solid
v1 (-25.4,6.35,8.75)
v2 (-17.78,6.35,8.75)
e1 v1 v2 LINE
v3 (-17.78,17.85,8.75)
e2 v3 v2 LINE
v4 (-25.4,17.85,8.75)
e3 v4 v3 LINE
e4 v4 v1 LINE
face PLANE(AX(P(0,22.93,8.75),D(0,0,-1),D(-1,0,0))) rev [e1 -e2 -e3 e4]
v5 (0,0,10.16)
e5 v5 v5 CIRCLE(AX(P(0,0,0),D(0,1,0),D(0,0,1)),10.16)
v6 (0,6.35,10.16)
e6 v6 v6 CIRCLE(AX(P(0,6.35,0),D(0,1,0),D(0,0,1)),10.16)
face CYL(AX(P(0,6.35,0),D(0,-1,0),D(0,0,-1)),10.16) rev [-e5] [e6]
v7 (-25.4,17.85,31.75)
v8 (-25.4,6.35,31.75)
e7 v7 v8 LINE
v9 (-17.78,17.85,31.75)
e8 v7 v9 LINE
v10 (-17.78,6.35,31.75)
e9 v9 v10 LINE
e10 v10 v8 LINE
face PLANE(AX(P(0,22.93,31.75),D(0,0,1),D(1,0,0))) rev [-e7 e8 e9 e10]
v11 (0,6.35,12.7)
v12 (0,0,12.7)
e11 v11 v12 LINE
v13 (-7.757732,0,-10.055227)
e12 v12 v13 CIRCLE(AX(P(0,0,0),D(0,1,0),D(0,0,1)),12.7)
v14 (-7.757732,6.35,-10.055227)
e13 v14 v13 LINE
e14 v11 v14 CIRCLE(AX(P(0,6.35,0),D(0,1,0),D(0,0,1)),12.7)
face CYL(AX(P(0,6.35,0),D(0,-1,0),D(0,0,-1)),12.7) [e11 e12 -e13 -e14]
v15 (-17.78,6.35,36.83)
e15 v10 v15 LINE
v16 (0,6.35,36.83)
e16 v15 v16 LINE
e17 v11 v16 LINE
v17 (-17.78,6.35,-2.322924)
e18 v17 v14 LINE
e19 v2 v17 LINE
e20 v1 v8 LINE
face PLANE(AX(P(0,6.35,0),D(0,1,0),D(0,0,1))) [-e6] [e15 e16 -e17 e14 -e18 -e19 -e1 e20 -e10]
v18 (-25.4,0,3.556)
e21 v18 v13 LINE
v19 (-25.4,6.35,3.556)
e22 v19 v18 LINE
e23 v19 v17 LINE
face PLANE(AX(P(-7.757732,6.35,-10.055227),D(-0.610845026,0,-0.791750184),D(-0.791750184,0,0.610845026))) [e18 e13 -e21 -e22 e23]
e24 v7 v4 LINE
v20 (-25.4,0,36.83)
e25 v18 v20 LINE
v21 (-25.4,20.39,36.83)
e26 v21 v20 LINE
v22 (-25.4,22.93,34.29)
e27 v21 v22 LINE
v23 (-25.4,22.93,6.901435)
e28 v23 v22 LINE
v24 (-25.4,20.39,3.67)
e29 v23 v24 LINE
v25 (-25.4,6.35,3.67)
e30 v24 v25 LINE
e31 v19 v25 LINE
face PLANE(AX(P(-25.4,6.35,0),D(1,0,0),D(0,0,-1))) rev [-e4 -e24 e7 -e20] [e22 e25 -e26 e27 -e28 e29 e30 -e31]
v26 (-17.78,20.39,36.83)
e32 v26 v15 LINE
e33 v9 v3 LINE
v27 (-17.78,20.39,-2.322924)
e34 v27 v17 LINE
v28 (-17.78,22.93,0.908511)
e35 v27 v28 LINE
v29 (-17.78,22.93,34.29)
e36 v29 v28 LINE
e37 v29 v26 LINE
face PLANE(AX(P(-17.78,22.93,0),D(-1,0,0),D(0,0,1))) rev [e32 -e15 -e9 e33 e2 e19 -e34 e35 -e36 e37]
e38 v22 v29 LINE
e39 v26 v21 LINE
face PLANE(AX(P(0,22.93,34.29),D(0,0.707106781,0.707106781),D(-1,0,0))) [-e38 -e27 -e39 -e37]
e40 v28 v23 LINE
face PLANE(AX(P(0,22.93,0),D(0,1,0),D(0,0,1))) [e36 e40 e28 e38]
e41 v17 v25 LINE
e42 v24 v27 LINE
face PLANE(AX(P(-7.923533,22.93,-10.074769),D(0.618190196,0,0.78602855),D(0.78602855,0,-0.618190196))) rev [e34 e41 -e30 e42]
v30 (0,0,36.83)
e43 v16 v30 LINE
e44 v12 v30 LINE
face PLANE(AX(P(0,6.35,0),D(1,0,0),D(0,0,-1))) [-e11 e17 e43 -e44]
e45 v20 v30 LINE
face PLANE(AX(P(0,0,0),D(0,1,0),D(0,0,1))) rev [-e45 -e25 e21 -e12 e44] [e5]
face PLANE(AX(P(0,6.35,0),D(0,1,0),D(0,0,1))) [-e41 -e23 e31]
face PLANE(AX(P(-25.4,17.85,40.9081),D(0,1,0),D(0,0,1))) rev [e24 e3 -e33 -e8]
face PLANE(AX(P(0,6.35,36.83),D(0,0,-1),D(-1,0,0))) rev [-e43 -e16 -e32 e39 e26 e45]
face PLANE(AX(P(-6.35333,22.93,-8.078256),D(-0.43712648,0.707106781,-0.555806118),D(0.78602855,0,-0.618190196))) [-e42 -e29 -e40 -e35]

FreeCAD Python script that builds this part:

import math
import FreeCAD as App
import Part
import Sketcher

V = App.Vector
Q = App.Units.Quantity


def edges_at(feature, points):
    """Names of the edges that pass closest to the given points."""
    edges = feature.Shape.Edges
    near = lambda p: min(range(len(edges)), key=lambda i: edges[i].distToShape(Part.Vertex(*p))[0])
    return sorted({f"Edge{near(p) + 1}" for p in points})

doc = App.newDocument("Part")
params = doc.addObject("Spreadsheet::Sheet", "Params")
for row, (alias, value) in enumerate([
    ("sketch1_radius", "0.5 in"),
    ("sketch1_radius2", "0.4 in"),
    ("sketch1_width", "1 in"),
    ("sketch1_height", "0.95 in"),
    ("sketch1_height2", "1.31 in"),
    ("pad1_length", "0.25 in"),
    ("sketch2_width", "0.3 in"),
    ("sketch2_height", "0.2 in"),
    ("pad2_length", "16.58 mm"),
    ("sketch3_width", "0.3 in"),
    ("sketch3_height", "0.2 in"),
    ("pad3_length", "23 mm"),
    ("chamfer_size", "0.1 in"),
], start=1):
    params.set(f"A{row}", alias)
    params.set(f"B{row}", "=" + value)
    params.setAlias(f"B{row}", alias)

body = doc.addObject("PartDesign::Body", "Body")

# Sketch on XZ plane
sketch1 = body.newObject("Sketcher::SketchObject", "Sketch")
sketch1.AttachmentSupport = (doc.getObject("XZ_Plane"), [""])
sketch1.MapMode = "FlatFace"
sketch1.addGeometry(Part.LineSegment(V(0, 36.83, 0), V(0, 12.7, 0)), False)
sketch1.addGeometry(Part.ArcOfCircle(Part.Circle(V(0, 0, 0), V(0, 0, 1), 12.7), math.radians(-127.650629), math.radians(90)), False)
sketch1.addGeometry(Part.LineSegment(V(-7.757732, -10.055227, 0), V(-25.4, 3.556, 0)), False)
sketch1.addGeometry(Part.LineSegment(V(-25.4, 3.556, 0), V(-25.4, 36.83, 0)), False)
sketch1.addGeometry(Part.LineSegment(V(-25.4, 36.83, 0), V(0, 36.83, 0)), False)
sketch1.addGeometry(Part.ArcOfCircle(Part.Circle(V(0, 0, 0), V(0, 0, 1), 10.16), math.radians(-169.372933), math.radians(0)), False)
sketch1.addGeometry(Part.ArcOfCircle(Part.Circle(V(0, 0, 0), V(0, 0, 1), 10.16), math.radians(0), math.radians(171.52751)), False)
sketch1.addGeometry(Part.ArcOfCircle(Part.Circle(V(0, 0, 0), V(0, 0, 1), 10.16), math.radians(171.52751), math.radians(190.627067)), False)
sketch1.addConstraint(Sketcher.Constraint("Coincident", 0, 2, 1, 2))
sketch1.addConstraint(Sketcher.Constraint("Tangent", 1, 1, 2, 1))
sketch1.addConstraint(Sketcher.Constraint("Coincident", 2, 2, 3, 1))
sketch1.addConstraint(Sketcher.Constraint("Coincident", 3, 2, 4, 1))
sketch1.addConstraint(Sketcher.Constraint("Coincident", 4, 2, 0, 1))
sketch1.addConstraint(Sketcher.Constraint("Tangent", 5, 2, 6, 1))
sketch1.addConstraint(Sketcher.Constraint("Tangent", 6, 2, 7, 1))
sketch1.addConstraint(Sketcher.Constraint("Tangent", 7, 2, 5, 1))
sketch1.addConstraint(Sketcher.Constraint("Vertical", 0))
sketch1.addConstraint(Sketcher.Constraint("Vertical", 3))
sketch1.addConstraint(Sketcher.Constraint("Horizontal", 4))
sketch1.addConstraint(Sketcher.Constraint("Coincident", 1, 3, -1, 1))
sketch1.addConstraint(Sketcher.Constraint("Coincident", 5, 3, -1, 1))
sketch1.addConstraint(Sketcher.Constraint("PointOnObject", 0, 2, -2))
sketch1.addConstraint(Sketcher.Constraint("PointOnObject", 5, 2, -1))
sketch1.addConstraint(Sketcher.Constraint("Radius", 1, Q("0.5 in")))
sketch1.addConstraint(Sketcher.Constraint("Radius", 5, Q("0.4 in")))
sketch1.addConstraint(Sketcher.Constraint("DistanceX", 4, 1, 4, 2, Q("1 in")))
sketch1.addConstraint(Sketcher.Constraint("DistanceY", 0, 2, 0, 1, Q("0.95 in")))
sketch1.addConstraint(Sketcher.Constraint("DistanceY", 3, 1, 3, 2, Q("1.31 in")))
sketch1.addConstraint(Sketcher.Constraint("DistanceY", 7, 2, 6, 2, Q("0.1327001 in")))
sketch1.addConstraint(Sketcher.Constraint("DistanceX", 6, 2, -1, 1, Q("10.049121 mm")))
sketch1.setExpression("Constraints[15]", "Params.sketch1_radius")
sketch1.setExpression("Constraints[16]", "Params.sketch1_radius2")
sketch1.setExpression("Constraints[17]", "Params.sketch1_width")
sketch1.setExpression("Constraints[18]", "Params.sketch1_height")
sketch1.setExpression("Constraints[19]", "Params.sketch1_height2")
pad1 = body.newObject("PartDesign::Pad", "Pad")
pad1.Profile = sketch1
pad1.setExpression("Length", "Params.pad1_length")
pad1.Reversed = True

# Sketch on XZ plane
sketch2 = body.newObject("Sketcher::SketchObject", "Sketch001")
sketch2.AttachmentSupport = (doc.getObject("XZ_Plane"), [""])
sketch2.MapMode = "FlatFace"
sketch2.AttachmentOffset = App.Placement(V(0, 0, -0.25 * 25.4), App.Rotation())
sketch2.addGeometry(Part.LineSegment(V(-17.78, -2.322924, 0), V(-25.4, 3.67, 0)), False)
sketch2.addGeometry(Part.LineSegment(V(-25.4, 3.67, 0), V(-25.4, 8.75, 0)), False)
sketch2.addGeometry(Part.LineSegment(V(-25.4, 8.75, 0), V(-17.78, 8.75, 0)), False)
sketch2.addGeometry(Part.LineSegment(V(-17.78, 8.75, 0), V(-17.78, -2.322924, 0)), False)
sketch2.addGeometry(Part.LineSegment(V(-25.4, 31.75, 0), V(-25.4, 36.83, 0)), False)
sketch2.addGeometry(Part.LineSegment(V(-25.4, 36.83, 0), V(-17.78, 36.83, 0)), False)
sketch2.addGeometry(Part.LineSegment(V(-17.78, 36.83, 0), V(-17.78, 31.75, 0)), False)
sketch2.addGeometry(Part.LineSegment(V(-17.78, 31.75, 0), V(-25.4, 31.75, 0)), False)
sketch2.addConstraint(Sketcher.Constraint("Coincident", 0, 2, 1, 1))
sketch2.addConstraint(Sketcher.Constraint("Coincident", 1, 2, 2, 1))
sketch2.addConstraint(Sketcher.Constraint("Coincident", 2, 2, 3, 1))
sketch2.addConstraint(Sketcher.Constraint("Coincident", 3, 2, 0, 1))
sketch2.addConstraint(Sketcher.Constraint("Coincident", 4, 2, 5, 1))
sketch2.addConstraint(Sketcher.Constraint("Coincident", 5, 2, 6, 1))
sketch2.addConstraint(Sketcher.Constraint("Coincident", 6, 2, 7, 1))
sketch2.addConstraint(Sketcher.Constraint("Coincident", 7, 2, 4, 1))
sketch2.addConstraint(Sketcher.Constraint("Vertical", 1))
sketch2.addConstraint(Sketcher.Constraint("Horizontal", 2))
sketch2.addConstraint(Sketcher.Constraint("Vertical", 3))
sketch2.addConstraint(Sketcher.Constraint("Vertical", 4))
sketch2.addConstraint(Sketcher.Constraint("Horizontal", 5))
sketch2.addConstraint(Sketcher.Constraint("Vertical", 6))
sketch2.addConstraint(Sketcher.Constraint("Horizontal", 7))
sketch2.addConstraint(Sketcher.Constraint("Vertical", 1, 2, 4, 2))
sketch2.addConstraint(Sketcher.Constraint("Vertical", 3, 2, 5, 2))
sketch2.addConstraint(Sketcher.Constraint("Equal", 1, 4))
sketch2.addConstraint(Sketcher.Constraint("DistanceX", 2, 1, 2, 2, Q("0.3 in")))
sketch2.addConstraint(Sketcher.Constraint("DistanceY", 1, 1, 1, 2, Q("0.2 in")))
sketch2.addConstraint(Sketcher.Constraint("DistanceX", 0, 2, -1, 1, Q("1 in")))
sketch2.addConstraint(Sketcher.Constraint("DistanceY", -1, 1, 4, 2, Q("1.45 in")))
sketch2.addConstraint(Sketcher.Constraint("DistanceY", -1, 1, 0, 2, Q("3.67 mm")))
sketch2.addConstraint(Sketcher.Constraint("DistanceY", 3, 2, 3, 1, Q("11.072924 mm")))
sketch2.setExpression("Constraints[18]", "Params.sketch2_width")
sketch2.setExpression("Constraints[19]", "Params.sketch2_height")
pad2 = body.newObject("PartDesign::Pad", "Pad001")
pad2.Profile = sketch2
pad2.setExpression("Length", "Params.pad2_length")
pad2.Reversed = True

# Sketch on XY plane
sketch3 = body.newObject("Sketcher::SketchObject", "Sketch002")
sketch3.AttachmentSupport = (doc.getObject("XY_Plane"), [""])
sketch3.MapMode = "FlatFace"
sketch3.AttachmentOffset = App.Placement(V(0, 0, 8.75), App.Rotation())
sketch3.addGeometry(Part.LineSegment(V(-25.4, 22.93, 0), V(-25.4, 17.85, 0)), False)
sketch3.addGeometry(Part.LineSegment(V(-25.4, 17.85, 0), V(-17.78, 17.85, 0)), False)
sketch3.addGeometry(Part.LineSegment(V(-17.78, 17.85, 0), V(-17.78, 22.93, 0)), False)
sketch3.addGeometry(Part.LineSegment(V(-17.78, 22.93, 0), V(-25.4, 22.93, 0)), False)
sketch3.addConstraint(Sketcher.Constraint("Coincident", 0, 2, 1, 1))
sketch3.addConstraint(Sketcher.Constraint("Coincident", 1, 2, 2, 1))
sketch3.addConstraint(Sketcher.Constraint("Coincident", 2, 2, 3, 1))
sketch3.addConstraint(Sketcher.Constraint("Coincident", 3, 2, 0, 1))
sketch3.addConstraint(Sketcher.Constraint("Vertical", 0))
sketch3.addConstraint(Sketcher.Constraint("Horizontal", 1))
sketch3.addConstraint(Sketcher.Constraint("Vertical", 2))
sketch3.addConstraint(Sketcher.Constraint("Horizontal", 3))
sketch3.addConstraint(Sketcher.Constraint("DistanceX", 1, 1, 1, 2, Q("0.3 in")))
sketch3.addConstraint(Sketcher.Constraint("DistanceY", 0, 2, 0, 1, Q("0.2 in")))
sketch3.addConstraint(Sketcher.Constraint("DistanceX", 0, 2, -1, 1, Q("1 in")))
sketch3.addConstraint(Sketcher.Constraint("DistanceY", -1, 1, 0, 2, Q("17.85 mm")))
sketch3.setExpression("Constraints[8]", "Params.sketch3_width")
sketch3.setExpression("Constraints[9]", "Params.sketch3_height")
pad3 = body.newObject("PartDesign::Pad", "Pad002")
pad3.Profile = sketch3
pad3.setExpression("Length", "Params.pad3_length")
doc.recompute()

chamfer = body.newObject("PartDesign::Chamfer", "Chamfer")
chamfer.Base = (pad3, edges_at(pad3, [(-21.59, 22.93, 0.674), (-21.59, 22.93, 36.83)]))
chamfer.setExpression("Size", "Params.chamfer_size")

doc.recompute()
